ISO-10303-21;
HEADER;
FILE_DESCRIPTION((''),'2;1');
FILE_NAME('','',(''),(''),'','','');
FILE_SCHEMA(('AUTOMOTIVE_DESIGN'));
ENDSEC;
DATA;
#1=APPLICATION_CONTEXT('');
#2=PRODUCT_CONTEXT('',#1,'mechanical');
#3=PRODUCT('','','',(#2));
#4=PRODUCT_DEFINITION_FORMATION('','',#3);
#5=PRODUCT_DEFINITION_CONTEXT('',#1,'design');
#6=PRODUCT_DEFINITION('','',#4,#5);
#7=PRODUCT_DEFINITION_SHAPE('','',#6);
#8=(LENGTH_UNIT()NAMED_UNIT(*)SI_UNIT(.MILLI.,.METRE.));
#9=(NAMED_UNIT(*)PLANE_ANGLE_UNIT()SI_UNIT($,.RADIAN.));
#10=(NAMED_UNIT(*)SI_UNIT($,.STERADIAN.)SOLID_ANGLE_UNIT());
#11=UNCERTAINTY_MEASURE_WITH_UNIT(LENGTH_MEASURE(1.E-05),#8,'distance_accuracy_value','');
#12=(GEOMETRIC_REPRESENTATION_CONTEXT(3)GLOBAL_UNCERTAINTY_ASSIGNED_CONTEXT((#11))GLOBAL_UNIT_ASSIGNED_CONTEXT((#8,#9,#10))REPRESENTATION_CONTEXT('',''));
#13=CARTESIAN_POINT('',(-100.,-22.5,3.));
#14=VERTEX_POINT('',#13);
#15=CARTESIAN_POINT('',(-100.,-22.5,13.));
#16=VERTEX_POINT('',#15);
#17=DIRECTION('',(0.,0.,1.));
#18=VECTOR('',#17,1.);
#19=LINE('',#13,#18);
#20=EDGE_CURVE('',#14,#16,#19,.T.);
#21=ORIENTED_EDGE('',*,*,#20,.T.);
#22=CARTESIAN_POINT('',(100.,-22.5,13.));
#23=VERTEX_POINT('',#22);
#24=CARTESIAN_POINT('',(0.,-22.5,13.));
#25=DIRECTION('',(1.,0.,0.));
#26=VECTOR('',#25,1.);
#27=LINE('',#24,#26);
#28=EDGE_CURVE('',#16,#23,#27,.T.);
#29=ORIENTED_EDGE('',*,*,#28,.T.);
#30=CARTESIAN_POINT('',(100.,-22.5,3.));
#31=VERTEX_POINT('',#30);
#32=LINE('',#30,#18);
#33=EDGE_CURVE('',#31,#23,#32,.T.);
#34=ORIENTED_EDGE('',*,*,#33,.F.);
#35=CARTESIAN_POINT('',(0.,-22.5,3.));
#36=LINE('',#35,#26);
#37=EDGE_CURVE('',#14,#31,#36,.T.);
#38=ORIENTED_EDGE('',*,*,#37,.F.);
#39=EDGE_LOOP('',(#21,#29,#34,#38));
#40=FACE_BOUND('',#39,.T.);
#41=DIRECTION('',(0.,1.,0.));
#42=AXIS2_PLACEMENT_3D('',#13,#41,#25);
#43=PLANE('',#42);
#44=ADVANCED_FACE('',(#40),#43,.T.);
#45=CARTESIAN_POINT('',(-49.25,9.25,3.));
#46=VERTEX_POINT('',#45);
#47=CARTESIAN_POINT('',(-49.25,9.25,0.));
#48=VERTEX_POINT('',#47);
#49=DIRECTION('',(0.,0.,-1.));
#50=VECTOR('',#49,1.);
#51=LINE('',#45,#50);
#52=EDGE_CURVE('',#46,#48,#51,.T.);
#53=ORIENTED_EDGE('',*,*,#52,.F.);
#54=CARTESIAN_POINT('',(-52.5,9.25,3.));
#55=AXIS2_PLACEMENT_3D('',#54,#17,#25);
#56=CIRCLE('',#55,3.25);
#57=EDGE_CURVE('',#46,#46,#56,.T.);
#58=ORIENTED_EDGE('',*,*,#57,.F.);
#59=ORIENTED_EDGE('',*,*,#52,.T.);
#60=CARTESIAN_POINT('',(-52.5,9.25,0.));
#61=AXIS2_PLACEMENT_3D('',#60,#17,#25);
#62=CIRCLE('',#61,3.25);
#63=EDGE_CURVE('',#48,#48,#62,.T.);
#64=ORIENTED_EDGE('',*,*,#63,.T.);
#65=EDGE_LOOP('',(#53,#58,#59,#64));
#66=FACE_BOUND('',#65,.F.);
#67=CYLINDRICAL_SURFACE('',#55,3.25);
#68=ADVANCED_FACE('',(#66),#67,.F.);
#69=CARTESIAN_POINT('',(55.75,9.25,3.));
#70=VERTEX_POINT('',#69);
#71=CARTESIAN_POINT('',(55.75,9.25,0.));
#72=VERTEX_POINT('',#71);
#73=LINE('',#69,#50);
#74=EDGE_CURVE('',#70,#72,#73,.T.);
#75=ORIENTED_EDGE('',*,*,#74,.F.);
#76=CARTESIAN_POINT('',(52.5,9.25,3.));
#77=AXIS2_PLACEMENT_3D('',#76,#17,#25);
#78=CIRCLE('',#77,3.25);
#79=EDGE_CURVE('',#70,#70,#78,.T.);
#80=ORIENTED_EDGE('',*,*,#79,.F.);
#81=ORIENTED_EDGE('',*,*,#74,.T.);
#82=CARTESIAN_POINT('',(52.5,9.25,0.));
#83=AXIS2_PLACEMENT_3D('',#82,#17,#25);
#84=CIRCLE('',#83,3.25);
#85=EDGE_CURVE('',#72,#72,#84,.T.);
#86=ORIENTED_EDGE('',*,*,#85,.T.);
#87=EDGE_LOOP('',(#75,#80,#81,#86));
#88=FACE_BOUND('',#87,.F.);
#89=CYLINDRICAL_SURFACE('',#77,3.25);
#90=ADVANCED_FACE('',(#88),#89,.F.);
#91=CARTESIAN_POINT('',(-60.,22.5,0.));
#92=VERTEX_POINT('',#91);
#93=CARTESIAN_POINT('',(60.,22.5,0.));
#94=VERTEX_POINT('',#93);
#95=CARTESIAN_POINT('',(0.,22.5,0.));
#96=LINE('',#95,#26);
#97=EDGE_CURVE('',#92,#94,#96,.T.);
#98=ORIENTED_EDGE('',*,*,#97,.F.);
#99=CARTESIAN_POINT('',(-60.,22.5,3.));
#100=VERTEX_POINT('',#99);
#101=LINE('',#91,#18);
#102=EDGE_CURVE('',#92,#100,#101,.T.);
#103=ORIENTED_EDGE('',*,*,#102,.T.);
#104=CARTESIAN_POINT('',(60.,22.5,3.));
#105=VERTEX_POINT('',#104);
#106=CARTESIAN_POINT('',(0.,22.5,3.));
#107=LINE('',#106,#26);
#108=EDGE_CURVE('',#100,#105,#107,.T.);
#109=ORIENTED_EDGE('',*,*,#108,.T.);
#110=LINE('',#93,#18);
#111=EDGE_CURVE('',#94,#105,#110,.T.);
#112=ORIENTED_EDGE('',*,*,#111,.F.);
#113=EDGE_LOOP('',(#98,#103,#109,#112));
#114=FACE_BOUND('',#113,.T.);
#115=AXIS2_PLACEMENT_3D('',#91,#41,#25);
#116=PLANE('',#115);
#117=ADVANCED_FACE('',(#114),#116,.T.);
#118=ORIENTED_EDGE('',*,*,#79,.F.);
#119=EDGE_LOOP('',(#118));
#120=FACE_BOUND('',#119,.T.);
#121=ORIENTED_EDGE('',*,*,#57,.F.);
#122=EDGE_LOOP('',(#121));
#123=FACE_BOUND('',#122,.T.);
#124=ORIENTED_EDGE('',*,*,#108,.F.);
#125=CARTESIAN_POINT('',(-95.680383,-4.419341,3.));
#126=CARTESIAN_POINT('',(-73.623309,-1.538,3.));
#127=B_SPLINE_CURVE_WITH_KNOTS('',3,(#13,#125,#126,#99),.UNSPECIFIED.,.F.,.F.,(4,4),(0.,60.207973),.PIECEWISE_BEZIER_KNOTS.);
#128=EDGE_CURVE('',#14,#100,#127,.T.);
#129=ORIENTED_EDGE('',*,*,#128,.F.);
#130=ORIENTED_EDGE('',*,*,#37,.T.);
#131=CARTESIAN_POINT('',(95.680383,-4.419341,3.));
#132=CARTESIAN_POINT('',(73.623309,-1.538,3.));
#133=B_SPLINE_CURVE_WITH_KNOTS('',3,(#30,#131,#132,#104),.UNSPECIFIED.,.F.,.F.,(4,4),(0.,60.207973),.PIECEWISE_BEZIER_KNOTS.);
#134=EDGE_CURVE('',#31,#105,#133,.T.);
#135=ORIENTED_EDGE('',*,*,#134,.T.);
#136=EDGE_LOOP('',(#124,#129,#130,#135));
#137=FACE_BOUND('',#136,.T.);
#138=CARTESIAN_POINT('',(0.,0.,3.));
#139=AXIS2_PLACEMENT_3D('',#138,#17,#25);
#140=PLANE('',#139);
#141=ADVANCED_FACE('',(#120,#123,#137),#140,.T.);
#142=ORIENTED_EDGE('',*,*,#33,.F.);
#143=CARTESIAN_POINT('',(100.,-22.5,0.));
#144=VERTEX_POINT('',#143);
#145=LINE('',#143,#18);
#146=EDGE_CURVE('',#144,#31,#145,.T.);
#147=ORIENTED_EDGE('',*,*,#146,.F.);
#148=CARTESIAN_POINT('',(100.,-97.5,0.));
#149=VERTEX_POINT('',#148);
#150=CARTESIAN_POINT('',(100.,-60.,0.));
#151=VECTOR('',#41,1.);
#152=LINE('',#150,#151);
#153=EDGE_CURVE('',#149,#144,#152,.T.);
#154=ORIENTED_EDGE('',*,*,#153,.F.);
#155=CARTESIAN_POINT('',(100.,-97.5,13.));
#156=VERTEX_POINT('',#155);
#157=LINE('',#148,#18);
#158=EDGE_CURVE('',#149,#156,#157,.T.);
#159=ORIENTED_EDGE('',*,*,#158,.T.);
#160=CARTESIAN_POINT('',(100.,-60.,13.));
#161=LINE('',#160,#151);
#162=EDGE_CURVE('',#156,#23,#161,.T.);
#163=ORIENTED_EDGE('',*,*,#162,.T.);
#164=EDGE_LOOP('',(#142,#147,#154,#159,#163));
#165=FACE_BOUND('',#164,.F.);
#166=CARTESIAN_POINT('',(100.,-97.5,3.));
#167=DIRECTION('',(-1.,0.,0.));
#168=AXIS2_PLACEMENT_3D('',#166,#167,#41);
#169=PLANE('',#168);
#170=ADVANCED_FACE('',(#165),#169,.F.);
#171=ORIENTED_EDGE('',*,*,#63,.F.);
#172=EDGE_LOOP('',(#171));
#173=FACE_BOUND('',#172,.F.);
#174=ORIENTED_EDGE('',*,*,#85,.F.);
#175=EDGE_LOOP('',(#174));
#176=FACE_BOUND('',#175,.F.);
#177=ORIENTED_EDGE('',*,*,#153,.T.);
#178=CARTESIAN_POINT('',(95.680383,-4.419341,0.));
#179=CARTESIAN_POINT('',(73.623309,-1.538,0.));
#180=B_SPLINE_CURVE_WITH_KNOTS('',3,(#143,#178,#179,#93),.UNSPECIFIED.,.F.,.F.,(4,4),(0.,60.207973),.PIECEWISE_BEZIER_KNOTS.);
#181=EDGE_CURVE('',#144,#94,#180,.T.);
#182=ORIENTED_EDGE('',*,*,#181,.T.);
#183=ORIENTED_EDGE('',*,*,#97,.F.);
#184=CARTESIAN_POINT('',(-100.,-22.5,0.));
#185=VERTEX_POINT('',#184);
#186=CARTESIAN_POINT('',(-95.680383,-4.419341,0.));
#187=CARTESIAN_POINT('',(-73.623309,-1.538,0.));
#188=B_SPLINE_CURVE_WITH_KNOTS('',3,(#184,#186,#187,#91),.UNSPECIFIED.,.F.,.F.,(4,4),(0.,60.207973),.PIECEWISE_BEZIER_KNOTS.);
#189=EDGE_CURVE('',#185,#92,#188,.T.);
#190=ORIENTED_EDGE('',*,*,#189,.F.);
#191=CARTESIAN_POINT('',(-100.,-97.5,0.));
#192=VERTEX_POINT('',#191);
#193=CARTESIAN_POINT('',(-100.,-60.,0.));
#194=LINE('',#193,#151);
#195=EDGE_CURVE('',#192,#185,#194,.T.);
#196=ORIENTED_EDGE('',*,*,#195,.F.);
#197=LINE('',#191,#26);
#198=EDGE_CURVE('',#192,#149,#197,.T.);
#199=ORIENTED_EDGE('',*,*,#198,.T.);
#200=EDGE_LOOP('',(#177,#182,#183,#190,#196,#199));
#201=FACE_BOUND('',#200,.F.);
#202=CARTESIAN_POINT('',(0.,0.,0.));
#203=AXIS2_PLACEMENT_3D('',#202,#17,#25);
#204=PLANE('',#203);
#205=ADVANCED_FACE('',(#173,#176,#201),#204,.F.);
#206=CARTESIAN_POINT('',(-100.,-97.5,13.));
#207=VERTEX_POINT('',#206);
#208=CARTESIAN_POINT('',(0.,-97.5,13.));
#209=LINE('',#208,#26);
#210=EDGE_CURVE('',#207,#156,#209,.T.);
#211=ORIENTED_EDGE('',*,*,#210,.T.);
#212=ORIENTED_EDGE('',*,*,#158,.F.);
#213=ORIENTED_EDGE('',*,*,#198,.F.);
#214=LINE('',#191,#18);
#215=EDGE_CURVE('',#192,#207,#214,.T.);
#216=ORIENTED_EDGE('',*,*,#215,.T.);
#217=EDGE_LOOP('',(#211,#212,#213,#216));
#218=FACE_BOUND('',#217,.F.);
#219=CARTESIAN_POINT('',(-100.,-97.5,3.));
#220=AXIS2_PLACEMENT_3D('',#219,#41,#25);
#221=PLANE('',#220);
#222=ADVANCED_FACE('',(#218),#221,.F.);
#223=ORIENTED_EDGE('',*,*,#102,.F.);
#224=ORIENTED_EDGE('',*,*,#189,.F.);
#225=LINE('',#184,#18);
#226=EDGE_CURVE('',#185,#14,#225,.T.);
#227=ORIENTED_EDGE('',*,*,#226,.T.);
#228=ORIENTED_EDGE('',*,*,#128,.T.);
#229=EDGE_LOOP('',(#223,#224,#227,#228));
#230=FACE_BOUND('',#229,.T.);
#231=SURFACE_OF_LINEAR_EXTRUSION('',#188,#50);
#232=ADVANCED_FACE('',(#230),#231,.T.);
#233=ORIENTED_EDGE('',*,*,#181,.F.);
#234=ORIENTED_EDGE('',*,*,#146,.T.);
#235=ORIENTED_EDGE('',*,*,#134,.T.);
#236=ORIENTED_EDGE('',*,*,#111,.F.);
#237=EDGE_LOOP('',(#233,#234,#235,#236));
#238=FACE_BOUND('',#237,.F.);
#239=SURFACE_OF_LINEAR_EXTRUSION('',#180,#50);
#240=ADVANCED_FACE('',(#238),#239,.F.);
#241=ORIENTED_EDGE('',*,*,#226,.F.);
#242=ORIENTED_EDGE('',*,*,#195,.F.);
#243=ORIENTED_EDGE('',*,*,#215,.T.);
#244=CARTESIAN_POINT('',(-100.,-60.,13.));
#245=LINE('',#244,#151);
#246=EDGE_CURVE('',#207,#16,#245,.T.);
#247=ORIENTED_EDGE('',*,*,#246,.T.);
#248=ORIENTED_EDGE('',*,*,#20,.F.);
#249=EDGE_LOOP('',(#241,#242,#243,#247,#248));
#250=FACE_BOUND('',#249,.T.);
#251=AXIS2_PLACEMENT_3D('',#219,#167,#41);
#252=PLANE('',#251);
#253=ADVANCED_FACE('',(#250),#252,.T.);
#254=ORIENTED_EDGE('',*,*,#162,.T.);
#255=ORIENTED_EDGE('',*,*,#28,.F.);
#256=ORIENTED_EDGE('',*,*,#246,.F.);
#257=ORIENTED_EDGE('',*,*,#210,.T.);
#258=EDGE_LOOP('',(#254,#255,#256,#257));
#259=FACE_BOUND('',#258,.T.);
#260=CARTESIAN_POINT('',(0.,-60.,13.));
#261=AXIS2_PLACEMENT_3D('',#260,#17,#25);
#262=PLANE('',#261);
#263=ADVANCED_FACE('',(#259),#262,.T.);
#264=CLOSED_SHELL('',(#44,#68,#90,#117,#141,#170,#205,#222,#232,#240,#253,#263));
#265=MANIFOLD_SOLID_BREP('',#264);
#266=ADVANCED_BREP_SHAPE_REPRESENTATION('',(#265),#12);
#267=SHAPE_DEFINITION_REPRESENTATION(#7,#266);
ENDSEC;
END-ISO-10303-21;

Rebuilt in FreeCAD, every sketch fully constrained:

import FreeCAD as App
import Part
import Sketcher

V = App.Vector
Q = App.Units.Quantity

doc = App.newDocument("Part")
params = doc.addObject("Spreadsheet::Sheet", "Params")
for row, (alias, value) in enumerate([
    ("sketch1_height", "75 mm"),
    ("pad1_length", "3 mm"),
    ("sketch2_width", "200 mm"),
    ("sketch2_height", "75 mm"),
    ("pad2_length", "10 mm"),
    ("sketch3_diameter", "6.5 mm"),
    ("pocket1_length", "25 mm"),
], start=1):
    params.set(f"A{row}", alias)
    params.set(f"B{row}", "=" + value)
    params.setAlias(f"B{row}", alias)

body = doc.addObject("PartDesign::Body", "Body")

# Sketch on XY plane
sketch1 = body.newObject("Sketcher::SketchObject", "Sketch")
sketch1.AttachmentSupport = (doc.getObject("XY_Plane"), [""])
sketch1.MapMode = "FlatFace"
sketch1.addGeometry(Part.LineSegment(V(60, 22.5, 0), V(-60, 22.5, 0)), False)
sketch1.addGeometry(Part.BSplineCurve([V(-100, -22.5, 0), V(-95.680383, -4.419341, 0), V(-73.623309, -1.538, 0), V(-60, 22.5, 0)], [4, 4], [0, 60.207973], False, 3, [1, 1, 1, 1], False), False)
sketch1.addGeometry(Part.LineSegment(V(-100, -22.5, 0), V(-100, -97.5, 0)), False)
sketch1.addGeometry(Part.LineSegment(V(-100, -97.5, 0), V(100, -97.5, 0)), False)
sketch1.addGeometry(Part.LineSegment(V(100, -97.5, 0), V(100, -22.5, 0)), False)
sketch1.addGeometry(Part.BSplineCurve([V(100, -22.5, 0), V(95.680383, -4.419341, 0), V(73.623309, -1.538, 0), V(60, 22.5, 0)], [4, 4], [0, 60.207973], False, 3, [1, 1, 1, 1], False), False)
sketch1.addConstraint(Sketcher.Constraint("Block", 1))
sketch1.addConstraint(Sketcher.Constraint("Block", 5))
sketch1.addConstraint(Sketcher.Constraint("Coincident", 0, 2, 1, 2))
sketch1.addConstraint(Sketcher.Constraint("Coincident", 1, 1, 2, 1))
sketch1.addConstraint(Sketcher.Constraint("Coincident", 2, 2, 3, 1))
sketch1.addConstraint(Sketcher.Constraint("Coincident", 3, 2, 4, 1))
sketch1.addConstraint(Sketcher.Constraint("Coincident", 4, 2, 5, 1))
sketch1.addConstraint(Sketcher.Constraint("Coincident", 5, 2, 0, 1))
sketch1.addConstraint(Sketcher.Constraint("Vertical", 2))
sketch1.addConstraint(Sketcher.Constraint("Horizontal", 3))
sketch1.addConstraint(Sketcher.Constraint("Vertical", 4))
sketch1.addConstraint(Sketcher.Constraint("DistanceY", 2, 2, 2, 1, Q("75 mm")))
sketch1.setExpression("Constraints[11]", "Params.sketch1_height")
pad1 = body.newObject("PartDesign::Pad", "Pad")
pad1.Profile = sketch1
pad1.setExpression("Length", "Params.pad1_length")

# Sketch on XY plane
sketch2 = body.newObject("Sketcher::SketchObject", "Sketch001")
sketch2.AttachmentSupport = (doc.getObject("XY_Plane"), [""])
sketch2.MapMode = "FlatFace"
sketch2.AttachmentOffset = App.Placement(V(0, 0, 3), App.Rotation())
sketch2.addGeometry(Part.LineSegment(V(-100, -22, 0), V(-100, -98, 0)), False)
sketch2.addGeometry(Part.LineSegment(V(-100, -98, 0), V(100, -98, 0)), False)
sketch2.addGeometry(Part.LineSegment(V(100, -98, 0), V(100, -22, 0)), False)
sketch2.addGeometry(Part.LineSegment(V(100, -22, 0), V(-100, -22, 0)), False)
sketch2.addConstraint(Sketcher.Constraint("Coincident", 0, 2, 1, 1))
sketch2.addConstraint(Sketcher.Constraint("Coincident", 1, 2, 2, 1))
sketch2.addConstraint(Sketcher.Constraint("Coincident", 2, 2, 3, 1))
sketch2.addConstraint(Sketcher.Constraint("Coincident", 3, 2, 0, 1))
sketch2.addConstraint(Sketcher.Constraint("Vertical", 0))
sketch2.addConstraint(Sketcher.Constraint("Horizontal", 1))
sketch2.addConstraint(Sketcher.Constraint("Vertical", 2))
sketch2.addConstraint(Sketcher.Constraint("Horizontal", 3))
sketch2.addConstraint(Sketcher.Constraint("DistanceX", 1, 1, 1, 2, Q("200 mm")))
sketch2.addConstraint(Sketcher.Constraint("DistanceY", 0, 2, 0, 1, Q("75 mm")))
sketch2.addConstraint(Sketcher.Constraint("DistanceX", 0, 2, -1, 1, Q("100 mm")))
sketch2.addConstraint(Sketcher.Constraint("DistanceY", 0, 2, -1, 1, Q("97.5 mm")))
sketch2.setExpression("Constraints[8]", "Params.sketch2_width")
sketch2.setExpression("Constraints[9]", "Params.sketch2_height")
pad2 = body.newObject("PartDesign::Pad", "Pad001")
pad2.Profile = sketch2
pad2.setExpression("Length", "Params.pad2_length")

# Sketch on XY plane
sketch3 = body.newObject("Sketcher::SketchObject", "Sketch002")
sketch3.AttachmentSupport = (doc.getObject("XY_Plane"), [""])
sketch3.MapMode = "FlatFace"
sketch3.AttachmentOffset = App.Placement(V(0, 0, 3), App.Rotation())
sketch3.addGeometry(Part.Circle(V(-52.5, 9.2, 0), V(0, 0, 1), 3.2), False)
sketch3.addGeometry(Part.Circle(V(52.5, 9.2, 0), V(0, 0, 1), 3.2), False)
sketch3.addConstraint(Sketcher.Constraint("Equal", 0, 1))
sketch3.addConstraint(Sketcher.Constraint("Symmetric", 0, 3, 1, 3, -2))
sketch3.addConstraint(Sketcher.Constraint("Diameter", 0, Q("6.5 mm")))
sketch3.addConstraint(Sketcher.Constraint("DistanceX", 0, 3, 1, 3, Q("105 mm")))
sketch3.addConstraint(Sketcher.Constraint("DistanceY", -1, 1, 0, 3, Q("9.25 mm")))
sketch3.setExpression("Constraints[2]", "Params.sketch3_diameter")
pocket1 = body.newObject("PartDesign::Pocket", "Pocket")
pocket1.Profile = sketch3
pocket1.setExpression("Length", "Params.pocket1_length")

doc.recompute()
